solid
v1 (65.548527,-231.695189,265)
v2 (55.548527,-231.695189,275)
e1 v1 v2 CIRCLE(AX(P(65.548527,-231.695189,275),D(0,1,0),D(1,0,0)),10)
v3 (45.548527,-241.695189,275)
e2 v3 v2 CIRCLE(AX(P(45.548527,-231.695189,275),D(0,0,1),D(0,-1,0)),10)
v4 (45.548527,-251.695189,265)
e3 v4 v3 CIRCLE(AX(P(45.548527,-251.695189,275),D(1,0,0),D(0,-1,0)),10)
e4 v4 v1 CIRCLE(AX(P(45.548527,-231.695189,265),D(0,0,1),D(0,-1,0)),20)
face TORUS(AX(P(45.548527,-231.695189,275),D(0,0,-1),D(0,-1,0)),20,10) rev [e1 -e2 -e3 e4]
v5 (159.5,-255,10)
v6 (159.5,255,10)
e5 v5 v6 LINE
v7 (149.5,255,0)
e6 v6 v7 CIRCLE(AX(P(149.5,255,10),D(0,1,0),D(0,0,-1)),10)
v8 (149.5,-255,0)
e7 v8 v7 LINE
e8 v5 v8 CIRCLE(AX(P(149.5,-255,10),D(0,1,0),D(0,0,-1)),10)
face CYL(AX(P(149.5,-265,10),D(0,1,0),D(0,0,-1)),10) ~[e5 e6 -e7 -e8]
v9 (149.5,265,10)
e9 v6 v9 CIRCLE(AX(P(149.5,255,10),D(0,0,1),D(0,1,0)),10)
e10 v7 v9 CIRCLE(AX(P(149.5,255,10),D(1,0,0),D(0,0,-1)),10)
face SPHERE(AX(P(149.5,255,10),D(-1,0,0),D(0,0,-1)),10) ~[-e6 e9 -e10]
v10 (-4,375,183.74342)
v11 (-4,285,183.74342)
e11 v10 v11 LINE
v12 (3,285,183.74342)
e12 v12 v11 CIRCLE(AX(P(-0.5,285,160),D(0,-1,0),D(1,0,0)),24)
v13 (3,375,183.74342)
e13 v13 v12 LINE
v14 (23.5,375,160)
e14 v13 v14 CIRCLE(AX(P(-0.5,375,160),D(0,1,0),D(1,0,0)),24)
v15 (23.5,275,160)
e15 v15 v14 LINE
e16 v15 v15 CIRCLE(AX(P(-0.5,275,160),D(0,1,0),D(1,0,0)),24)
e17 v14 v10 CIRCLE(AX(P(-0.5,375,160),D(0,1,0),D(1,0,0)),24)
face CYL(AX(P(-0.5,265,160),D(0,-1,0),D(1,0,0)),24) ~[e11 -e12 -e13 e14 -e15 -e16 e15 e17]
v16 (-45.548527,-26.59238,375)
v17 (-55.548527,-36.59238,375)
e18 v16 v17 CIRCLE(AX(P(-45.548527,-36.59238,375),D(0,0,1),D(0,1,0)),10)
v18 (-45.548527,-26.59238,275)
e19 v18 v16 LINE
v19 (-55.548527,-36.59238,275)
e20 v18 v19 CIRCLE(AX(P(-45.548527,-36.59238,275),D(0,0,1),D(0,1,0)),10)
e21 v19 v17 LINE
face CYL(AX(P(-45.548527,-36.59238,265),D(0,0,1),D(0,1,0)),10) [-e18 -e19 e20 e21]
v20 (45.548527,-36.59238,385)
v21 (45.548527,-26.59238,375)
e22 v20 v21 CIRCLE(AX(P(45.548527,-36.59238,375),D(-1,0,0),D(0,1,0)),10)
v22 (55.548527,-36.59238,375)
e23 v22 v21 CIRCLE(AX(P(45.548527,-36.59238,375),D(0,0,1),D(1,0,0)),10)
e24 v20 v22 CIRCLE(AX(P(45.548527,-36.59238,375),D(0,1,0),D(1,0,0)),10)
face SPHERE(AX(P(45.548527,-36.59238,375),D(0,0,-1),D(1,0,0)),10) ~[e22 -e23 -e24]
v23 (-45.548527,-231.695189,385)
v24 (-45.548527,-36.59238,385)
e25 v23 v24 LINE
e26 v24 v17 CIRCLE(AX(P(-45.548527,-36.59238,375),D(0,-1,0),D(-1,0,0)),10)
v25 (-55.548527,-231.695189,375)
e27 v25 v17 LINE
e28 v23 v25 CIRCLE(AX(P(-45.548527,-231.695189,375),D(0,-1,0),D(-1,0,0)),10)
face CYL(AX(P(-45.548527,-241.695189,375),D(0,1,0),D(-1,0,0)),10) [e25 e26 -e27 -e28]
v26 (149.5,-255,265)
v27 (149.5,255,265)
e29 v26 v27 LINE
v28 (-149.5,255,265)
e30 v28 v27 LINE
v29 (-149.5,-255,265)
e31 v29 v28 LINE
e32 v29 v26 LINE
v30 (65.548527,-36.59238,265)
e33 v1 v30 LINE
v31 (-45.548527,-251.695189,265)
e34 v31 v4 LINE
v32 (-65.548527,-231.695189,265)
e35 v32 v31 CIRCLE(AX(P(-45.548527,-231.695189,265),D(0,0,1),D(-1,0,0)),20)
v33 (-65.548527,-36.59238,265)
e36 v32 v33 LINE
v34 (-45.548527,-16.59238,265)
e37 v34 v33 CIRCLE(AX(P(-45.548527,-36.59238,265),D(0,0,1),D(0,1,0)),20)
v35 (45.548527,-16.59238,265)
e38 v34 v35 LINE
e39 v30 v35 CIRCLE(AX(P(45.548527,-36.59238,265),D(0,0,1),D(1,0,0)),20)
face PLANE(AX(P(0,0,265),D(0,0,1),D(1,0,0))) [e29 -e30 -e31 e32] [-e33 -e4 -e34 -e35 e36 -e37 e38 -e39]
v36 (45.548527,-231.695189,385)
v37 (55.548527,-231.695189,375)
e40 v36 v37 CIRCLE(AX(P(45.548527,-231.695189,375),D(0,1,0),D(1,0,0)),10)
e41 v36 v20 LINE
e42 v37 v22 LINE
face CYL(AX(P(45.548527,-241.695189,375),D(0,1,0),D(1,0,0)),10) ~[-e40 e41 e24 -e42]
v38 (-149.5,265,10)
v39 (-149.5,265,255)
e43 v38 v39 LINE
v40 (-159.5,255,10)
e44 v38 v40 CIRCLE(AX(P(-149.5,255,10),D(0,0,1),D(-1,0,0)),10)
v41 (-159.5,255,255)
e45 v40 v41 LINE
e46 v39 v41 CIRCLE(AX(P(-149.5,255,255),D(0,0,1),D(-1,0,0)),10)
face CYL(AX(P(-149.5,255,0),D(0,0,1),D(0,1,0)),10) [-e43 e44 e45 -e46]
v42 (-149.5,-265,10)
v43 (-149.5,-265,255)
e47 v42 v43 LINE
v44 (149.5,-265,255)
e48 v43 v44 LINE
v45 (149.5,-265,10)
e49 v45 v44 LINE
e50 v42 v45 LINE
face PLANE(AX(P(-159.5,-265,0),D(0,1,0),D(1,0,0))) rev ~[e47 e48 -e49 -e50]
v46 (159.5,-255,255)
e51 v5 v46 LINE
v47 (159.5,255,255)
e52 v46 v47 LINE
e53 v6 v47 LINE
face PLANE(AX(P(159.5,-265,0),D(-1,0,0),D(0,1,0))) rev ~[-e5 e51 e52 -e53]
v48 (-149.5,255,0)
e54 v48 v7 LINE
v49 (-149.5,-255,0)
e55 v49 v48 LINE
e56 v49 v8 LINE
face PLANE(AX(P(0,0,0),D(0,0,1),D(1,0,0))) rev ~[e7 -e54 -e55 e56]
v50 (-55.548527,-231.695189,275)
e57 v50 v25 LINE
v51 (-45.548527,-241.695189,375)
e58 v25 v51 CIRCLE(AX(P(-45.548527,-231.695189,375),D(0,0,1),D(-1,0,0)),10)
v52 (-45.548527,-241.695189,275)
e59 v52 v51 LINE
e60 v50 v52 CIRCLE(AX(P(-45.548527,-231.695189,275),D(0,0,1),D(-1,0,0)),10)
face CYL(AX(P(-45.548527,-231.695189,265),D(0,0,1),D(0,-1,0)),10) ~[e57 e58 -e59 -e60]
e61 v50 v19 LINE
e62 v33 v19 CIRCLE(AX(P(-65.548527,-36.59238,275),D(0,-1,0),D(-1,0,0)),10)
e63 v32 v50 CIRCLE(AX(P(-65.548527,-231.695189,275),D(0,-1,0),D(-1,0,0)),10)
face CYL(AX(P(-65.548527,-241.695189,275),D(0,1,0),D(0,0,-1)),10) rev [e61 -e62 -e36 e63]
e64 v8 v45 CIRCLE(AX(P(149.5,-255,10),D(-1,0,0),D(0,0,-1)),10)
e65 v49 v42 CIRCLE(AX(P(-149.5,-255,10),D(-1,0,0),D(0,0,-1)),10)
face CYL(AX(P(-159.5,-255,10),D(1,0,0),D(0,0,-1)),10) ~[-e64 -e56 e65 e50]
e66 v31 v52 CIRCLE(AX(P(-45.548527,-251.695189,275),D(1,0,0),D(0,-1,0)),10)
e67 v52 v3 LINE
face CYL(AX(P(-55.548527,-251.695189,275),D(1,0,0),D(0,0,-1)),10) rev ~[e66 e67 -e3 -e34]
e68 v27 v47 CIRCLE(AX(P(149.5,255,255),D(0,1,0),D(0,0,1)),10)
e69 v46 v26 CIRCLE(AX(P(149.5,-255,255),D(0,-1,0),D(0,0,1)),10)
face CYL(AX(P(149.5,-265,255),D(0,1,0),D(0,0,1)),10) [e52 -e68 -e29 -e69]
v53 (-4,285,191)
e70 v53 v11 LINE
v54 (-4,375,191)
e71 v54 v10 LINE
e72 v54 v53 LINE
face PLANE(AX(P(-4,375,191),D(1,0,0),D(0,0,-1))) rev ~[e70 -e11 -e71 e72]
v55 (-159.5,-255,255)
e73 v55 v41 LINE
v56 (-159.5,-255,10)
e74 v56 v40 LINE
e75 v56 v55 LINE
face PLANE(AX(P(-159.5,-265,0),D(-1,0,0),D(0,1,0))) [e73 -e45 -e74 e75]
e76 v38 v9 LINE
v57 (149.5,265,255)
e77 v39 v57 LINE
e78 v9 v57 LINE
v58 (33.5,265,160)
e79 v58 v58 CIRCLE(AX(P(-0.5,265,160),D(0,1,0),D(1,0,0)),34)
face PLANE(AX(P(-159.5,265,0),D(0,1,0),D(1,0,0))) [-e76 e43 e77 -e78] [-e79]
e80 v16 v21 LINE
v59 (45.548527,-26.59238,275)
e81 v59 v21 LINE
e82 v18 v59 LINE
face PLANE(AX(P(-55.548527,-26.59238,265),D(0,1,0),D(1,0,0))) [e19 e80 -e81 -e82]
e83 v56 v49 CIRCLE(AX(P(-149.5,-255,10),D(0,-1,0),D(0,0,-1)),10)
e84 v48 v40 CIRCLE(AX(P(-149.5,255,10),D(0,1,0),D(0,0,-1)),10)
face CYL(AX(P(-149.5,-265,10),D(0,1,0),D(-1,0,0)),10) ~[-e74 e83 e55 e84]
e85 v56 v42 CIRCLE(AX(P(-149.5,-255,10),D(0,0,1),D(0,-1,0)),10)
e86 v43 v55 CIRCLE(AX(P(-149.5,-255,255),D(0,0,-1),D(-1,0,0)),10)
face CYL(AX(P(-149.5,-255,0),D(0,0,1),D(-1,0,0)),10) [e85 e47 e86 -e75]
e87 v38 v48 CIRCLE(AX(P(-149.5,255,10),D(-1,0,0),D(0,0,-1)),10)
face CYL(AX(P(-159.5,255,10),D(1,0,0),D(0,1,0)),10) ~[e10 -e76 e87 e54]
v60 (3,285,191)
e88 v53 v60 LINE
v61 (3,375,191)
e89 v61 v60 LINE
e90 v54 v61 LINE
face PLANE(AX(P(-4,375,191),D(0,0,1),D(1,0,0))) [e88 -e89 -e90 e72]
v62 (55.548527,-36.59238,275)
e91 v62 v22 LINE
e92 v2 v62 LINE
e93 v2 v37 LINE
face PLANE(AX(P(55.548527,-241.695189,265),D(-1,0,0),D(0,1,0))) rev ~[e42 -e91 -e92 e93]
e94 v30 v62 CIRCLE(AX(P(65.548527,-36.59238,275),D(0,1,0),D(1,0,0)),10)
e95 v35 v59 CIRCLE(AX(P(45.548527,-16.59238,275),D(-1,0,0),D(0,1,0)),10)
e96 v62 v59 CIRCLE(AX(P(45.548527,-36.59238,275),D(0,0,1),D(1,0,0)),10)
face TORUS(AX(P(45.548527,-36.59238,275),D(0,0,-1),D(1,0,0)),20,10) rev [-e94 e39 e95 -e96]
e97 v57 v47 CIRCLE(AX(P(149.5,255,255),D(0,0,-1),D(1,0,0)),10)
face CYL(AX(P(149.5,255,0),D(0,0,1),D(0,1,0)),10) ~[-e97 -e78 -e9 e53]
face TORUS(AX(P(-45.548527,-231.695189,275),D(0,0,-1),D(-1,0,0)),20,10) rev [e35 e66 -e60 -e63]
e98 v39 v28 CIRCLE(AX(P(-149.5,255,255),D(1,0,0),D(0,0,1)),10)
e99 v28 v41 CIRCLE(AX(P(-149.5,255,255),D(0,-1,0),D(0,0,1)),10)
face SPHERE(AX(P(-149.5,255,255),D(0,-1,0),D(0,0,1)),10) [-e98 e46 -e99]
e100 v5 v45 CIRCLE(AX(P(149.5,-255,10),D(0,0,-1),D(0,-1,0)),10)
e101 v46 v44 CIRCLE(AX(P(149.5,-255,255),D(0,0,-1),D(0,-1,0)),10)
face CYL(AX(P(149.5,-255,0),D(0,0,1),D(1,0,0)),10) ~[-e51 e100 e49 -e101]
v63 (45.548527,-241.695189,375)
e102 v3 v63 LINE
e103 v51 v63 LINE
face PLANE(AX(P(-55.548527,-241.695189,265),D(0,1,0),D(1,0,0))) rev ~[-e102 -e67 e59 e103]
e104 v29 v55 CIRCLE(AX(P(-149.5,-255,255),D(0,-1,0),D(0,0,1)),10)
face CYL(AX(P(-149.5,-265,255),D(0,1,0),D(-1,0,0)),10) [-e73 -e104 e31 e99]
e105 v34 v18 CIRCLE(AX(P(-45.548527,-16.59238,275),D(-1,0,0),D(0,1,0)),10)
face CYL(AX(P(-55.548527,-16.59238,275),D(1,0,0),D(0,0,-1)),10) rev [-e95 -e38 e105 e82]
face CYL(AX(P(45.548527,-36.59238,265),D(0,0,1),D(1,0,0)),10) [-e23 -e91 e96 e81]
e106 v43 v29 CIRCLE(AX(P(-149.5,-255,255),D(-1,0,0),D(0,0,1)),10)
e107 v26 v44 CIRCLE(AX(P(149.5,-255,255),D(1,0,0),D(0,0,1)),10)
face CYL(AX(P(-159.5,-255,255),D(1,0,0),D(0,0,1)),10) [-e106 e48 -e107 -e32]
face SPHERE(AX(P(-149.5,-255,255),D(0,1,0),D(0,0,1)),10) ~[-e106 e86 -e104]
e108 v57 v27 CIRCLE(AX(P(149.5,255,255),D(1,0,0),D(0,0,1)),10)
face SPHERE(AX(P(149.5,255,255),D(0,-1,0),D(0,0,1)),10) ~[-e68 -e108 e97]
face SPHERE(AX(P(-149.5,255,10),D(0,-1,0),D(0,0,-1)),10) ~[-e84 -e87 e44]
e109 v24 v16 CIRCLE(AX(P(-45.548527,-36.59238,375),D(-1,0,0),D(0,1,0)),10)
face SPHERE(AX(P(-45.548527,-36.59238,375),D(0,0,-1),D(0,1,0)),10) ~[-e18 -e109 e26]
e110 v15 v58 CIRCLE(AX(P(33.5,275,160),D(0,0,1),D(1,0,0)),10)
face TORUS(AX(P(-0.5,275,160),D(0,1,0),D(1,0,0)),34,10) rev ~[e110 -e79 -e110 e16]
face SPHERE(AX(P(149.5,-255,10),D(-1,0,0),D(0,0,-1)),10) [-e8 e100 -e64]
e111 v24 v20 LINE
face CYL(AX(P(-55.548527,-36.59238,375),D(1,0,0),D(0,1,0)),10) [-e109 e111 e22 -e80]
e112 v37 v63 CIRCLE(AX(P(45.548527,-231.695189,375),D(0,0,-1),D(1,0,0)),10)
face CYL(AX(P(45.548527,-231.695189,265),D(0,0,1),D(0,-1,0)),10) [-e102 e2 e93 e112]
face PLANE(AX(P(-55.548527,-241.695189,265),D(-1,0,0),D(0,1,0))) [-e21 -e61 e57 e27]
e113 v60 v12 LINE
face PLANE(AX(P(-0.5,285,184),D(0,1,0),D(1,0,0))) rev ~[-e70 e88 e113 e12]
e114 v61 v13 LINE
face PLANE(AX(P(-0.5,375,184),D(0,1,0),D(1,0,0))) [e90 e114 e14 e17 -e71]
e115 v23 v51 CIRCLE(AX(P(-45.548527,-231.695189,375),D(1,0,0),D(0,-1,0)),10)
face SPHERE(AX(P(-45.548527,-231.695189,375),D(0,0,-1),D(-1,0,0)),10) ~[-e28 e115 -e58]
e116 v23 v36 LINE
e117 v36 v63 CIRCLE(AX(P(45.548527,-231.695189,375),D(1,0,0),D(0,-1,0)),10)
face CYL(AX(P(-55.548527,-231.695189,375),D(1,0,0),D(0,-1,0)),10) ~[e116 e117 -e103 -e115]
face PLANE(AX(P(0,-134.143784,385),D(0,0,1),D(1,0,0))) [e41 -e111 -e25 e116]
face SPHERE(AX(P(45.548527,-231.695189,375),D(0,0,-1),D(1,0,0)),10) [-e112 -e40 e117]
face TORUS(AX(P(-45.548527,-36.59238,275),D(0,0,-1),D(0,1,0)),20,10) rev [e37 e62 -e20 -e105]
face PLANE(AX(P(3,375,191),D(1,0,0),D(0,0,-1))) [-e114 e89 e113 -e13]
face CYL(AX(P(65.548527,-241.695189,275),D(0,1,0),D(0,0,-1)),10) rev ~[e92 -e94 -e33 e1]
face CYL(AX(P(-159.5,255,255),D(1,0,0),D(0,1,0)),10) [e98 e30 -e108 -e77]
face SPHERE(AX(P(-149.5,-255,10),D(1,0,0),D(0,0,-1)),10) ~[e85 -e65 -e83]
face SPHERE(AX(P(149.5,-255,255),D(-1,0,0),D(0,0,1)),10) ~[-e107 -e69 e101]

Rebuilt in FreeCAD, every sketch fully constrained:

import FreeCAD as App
import Part
import Sketcher


def edges_at(feature, points):
    """Names of the edges that pass closest to the given points."""
    edges = feature.Shape.Edges
    near = lambda p: min(range(len(edges)), key=lambda i: edges[i].distToShape(Part.Vertex(*p))[0])
    return sorted({f"Edge{near(p) + 1}" for p in points})


def add_polygon(sketch, points):
    """Adds a closed chain of lines whose ends are joined by coincident constraints."""
    first, n = sketch.GeometryCount, len(points)
    for a, b in zip(points, points[1:] + points[:1]):
        sketch.addGeometry(Part.LineSegment(App.Vector(*a, 0), App.Vector(*b, 0)), False)
    for i in range(n):
        sketch.addConstraint(Sketcher.Constraint("Coincident", first + i, 2, first + (i + 1) % n, 1))

doc = App.newDocument("Part")
body = doc.addObject("PartDesign::Body", "Body")

# Sketch on XY plane
sketch1 = body.newObject("Sketcher::SketchObject", "Sketch")
sketch1.AttachmentSupport = (doc.getObject("XY_Plane"), [""])
sketch1.MapMode = "FlatFace"
add_polygon(sketch1, [(-160, 265), (-160, -265), (160, -265), (160, 265)])  # lines 0-3
sketch1.addConstraint([
    Sketcher.Constraint("Vertical", 0),
    Sketcher.Constraint("Horizontal", 1),
    Sketcher.Constraint("Vertical", 2),
    Sketcher.Constraint("Horizontal", 3),
    Sketcher.Constraint("Symmetric", 0, 2, 2, 2, -1, 1),
    Sketcher.Constraint("DistanceX", 1, 1, 1, 2, 319.0),
    Sketcher.Constraint("DistanceY", 0, 2, 0, 1, 530.0),
])
pad1 = body.newObject("PartDesign::Pad", "Pad")
pad1.Profile = sketch1
pad1.Length = 265

# Sketch on XY plane
sketch2 = body.newObject("Sketcher::SketchObject", "Sketch001")
sketch2.AttachmentSupport = (doc.getObject("XY_Plane"), [""])
sketch2.MapMode = "FlatFace"
sketch2.AttachmentOffset = App.Placement(App.Vector(0, 0, 265), App.Rotation())
add_polygon(sketch2, [(-56, -27), (-56, -242), (56, -242), (56, -27)])  # lines 0-3
sketch2.addConstraint([
    Sketcher.Constraint("Vertical", 0),
    Sketcher.Constraint("Horizontal", 1),
    Sketcher.Constraint("Vertical", 2),
    Sketcher.Constraint("Horizontal", 3),
    Sketcher.Constraint("DistanceY", 0, 2, 0, 1, 215.102808),
    Sketcher.Constraint("DistanceX", 1, 1, 1, 2, 111.097055),
    Sketcher.Constraint("DistanceY", 0, 2, -1, 1, 241.695189),
    Sketcher.Constraint("DistanceX", 0, 2, -1, 1, 55.548527),
])
pad2 = body.newObject("PartDesign::Pad", "Pad001")
pad2.Profile = sketch2
pad2.Length = 120

# Sketch on XZ plane
sketch3 = body.newObject("Sketcher::SketchObject", "Sketch002")
sketch3.AttachmentSupport = (doc.getObject("XZ_Plane"), [""])
sketch3.MapMode = "FlatFace"
sketch3.AttachmentOffset = App.Placement(App.Vector(0, 0, -265), App.Rotation())
sketch3.addGeometry(Part.Circle(App.Vector(0, 160, 0), App.Vector(0, 0, 1), 24), False)
sketch3.addConstraint([
    Sketcher.Constraint("Diameter", 0, 48.0),
    Sketcher.Constraint("DistanceY", -1, 1, 0, 3, 160.0),
    Sketcher.Constraint("DistanceX", 0, 3, -1, 1, 0.5),
])
pad3 = body.newObject("PartDesign::Pad", "Pad002")
pad3.Profile = sketch3
pad3.Length = 110
pad3.Reversed = True

# Sketch on XZ plane
sketch4 = body.newObject("Sketcher::SketchObject", "Sketch003")
sketch4.AttachmentSupport = (doc.getObject("XZ_Plane"), [""])
sketch4.MapMode = "FlatFace"
sketch4.AttachmentOffset = App.Placement(App.Vector(0, 0, -375), App.Rotation())
add_polygon(sketch4, [(-4, 177), (-4, 191), (3, 191), (3, 177)])  # lines 0-3
sketch4.addConstraint([
    Sketcher.Constraint("Vertical", 0),
    Sketcher.Constraint("Horizontal", 1),
    Sketcher.Constraint("Vertical", 2),
    Sketcher.Constraint("Horizontal", 3),
    Sketcher.Constraint("DistanceX", 1, 1, 1, 2, 7.0),
    Sketcher.Constraint("DistanceY", 0, 1, 0, 2, 14.0),
    Sketcher.Constraint("DistanceX", 0, 2, -1, 1, 4.0),
    Sketcher.Constraint("DistanceY", -1, 1, 0, 2, 191.0),
])
pad4 = body.newObject("PartDesign::Pad", "Pad003")
pad4.Profile = sketch4
pad4.Length = 90
doc.recompute()

fillet = body.newObject("PartDesign::Fillet", "Fillet")
fillet.Base = (pad4, edges_at(pad4, [
    (-159.5, 0, 265),
    (0, -265, 265),
    (55.549, -134.144, 265),
    (55.549, -241.695, 325),
    (0, -26.592, 265),
    (55.549, -26.592, 325),
    (-55.549, -134.144, 265),
    (-55.549, -26.592, 325),
    (0, -241.695, 265),
    (-55.549, -241.695, 325),
    (55.549, -134.144, 385),
    (0, -26.592, 385),
    (-55.549, -134.144, 385),
    (0, -241.695, 385),
    (-24.5, 265, 160),
    (159.5, 0, 265),
    (0, -265, 0),
    (-159.5, 0, 0),
    (0, 265, 0),
    (159.5, 0, 0),
    (0, 265, 265),
    (159.5, -265, 132.5),
    (-159.5, -265, 132.5),
    (-159.5, 265, 132.5),
    (159.5, 265, 132.5),
]))
fillet.Radius = 10

doc.recompute()
